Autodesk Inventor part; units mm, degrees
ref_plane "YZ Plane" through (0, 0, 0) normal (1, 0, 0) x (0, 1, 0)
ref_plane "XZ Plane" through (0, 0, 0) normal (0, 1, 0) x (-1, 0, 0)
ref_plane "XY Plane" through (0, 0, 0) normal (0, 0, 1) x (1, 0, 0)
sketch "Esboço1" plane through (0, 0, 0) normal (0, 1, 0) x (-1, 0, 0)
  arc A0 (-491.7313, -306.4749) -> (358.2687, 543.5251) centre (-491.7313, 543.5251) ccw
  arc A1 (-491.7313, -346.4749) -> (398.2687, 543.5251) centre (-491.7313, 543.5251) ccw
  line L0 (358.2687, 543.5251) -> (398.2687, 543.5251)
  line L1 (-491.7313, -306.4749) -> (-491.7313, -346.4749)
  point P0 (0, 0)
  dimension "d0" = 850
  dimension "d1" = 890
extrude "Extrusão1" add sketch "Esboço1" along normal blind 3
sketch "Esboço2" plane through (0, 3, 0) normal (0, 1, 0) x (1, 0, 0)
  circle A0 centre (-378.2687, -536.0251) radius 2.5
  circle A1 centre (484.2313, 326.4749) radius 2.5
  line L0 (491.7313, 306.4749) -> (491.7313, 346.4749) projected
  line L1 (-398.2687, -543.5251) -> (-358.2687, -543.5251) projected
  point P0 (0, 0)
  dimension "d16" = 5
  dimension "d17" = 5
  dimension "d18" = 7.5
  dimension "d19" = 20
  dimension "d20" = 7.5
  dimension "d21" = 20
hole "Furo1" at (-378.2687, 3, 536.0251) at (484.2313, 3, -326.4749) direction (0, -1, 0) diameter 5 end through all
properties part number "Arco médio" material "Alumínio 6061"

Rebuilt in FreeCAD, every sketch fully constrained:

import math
import FreeCAD as App
import Part
import Sketcher

V = App.Vector

doc = App.newDocument("Part")
params = doc.addObject("Spreadsheet::Sheet", "Params")
for row, (alias, value) in enumerate([
    ("sketch1_radius", "850 mm"),
    ("sketch1_radius2", "890 mm"),
    ("pad1_length", "3 mm"),
    ("sketch2_diameter", "5 mm"),
    ("hole_diameter", "5 mm"),
], start=1):
    params.set(f"A{row}", alias)
    params.set(f"B{row}", "=" + value)
    params.setAlias(f"B{row}", alias)

body = doc.addObject("PartDesign::Body", "Body")

# Sketch on XZ plane
sketch1 = body.newObject("Sketcher::SketchObject", "Sketch")
sketch1.AttachmentSupport = (doc.getObject("XZ_Plane"), [""])
sketch1.MapMode = "FlatFace"
sketch1.addGeometry([
    Part.ArcOfCircle(Part.Circle(V(492, 544, 0), V(0, 0, 1), 850), math.radians(180), math.radians(270)),
    Part.LineSegment(V(492, -306, 0), V(492, -346, 0)),
    Part.ArcOfCircle(Part.Circle(V(492, 544, 0), V(0, 0, 1), 890), math.radians(180), math.radians(270)),
    Part.LineSegment(V(-398, 544, 0), V(-358, 544, 0)),
], False)
sketch1.addConstraint([
    Sketcher.Constraint("Coincident", 0, 2, 1, 1),
    Sketcher.Constraint("Coincident", 1, 2, 2, 2),
    Sketcher.Constraint("Coincident", 2, 1, 3, 1),
    Sketcher.Constraint("Coincident", 3, 2, 0, 1),
    Sketcher.Constraint("Vertical", 1),
    Sketcher.Constraint("Horizontal", 3),
    Sketcher.Constraint("Coincident", 2, 3, 0, 3),
    Sketcher.Constraint("Radius", 0, 850.0),
    Sketcher.Constraint("Radius", 2, 890.0),
    Sketcher.Constraint("DistanceX", 2, 1, 1, 2, 890.0),
    Sketcher.Constraint("DistanceY", 0, 2, 3, 2, 850.0),
    Sketcher.Constraint("DistanceY", -1, 1, 0, 3, 543.525),
    Sketcher.Constraint("DistanceX", -1, 1, 0, 3, 491.7313),
])
sketch1.setExpression("Constraints[7]", "Params.sketch1_radius")
sketch1.setExpression("Constraints[8]", "Params.sketch1_radius2")
pad1 = body.newObject("PartDesign::Pad", "Pad")
pad1.Profile = sketch1
pad1.setExpression("Length", "Params.pad1_length")
pad1.Reversed = True

# Sketch on XZ plane
sketch2 = body.newObject("Sketcher::SketchObject", "Sketch001")
sketch2.AttachmentSupport = (doc.getObject("XZ_Plane"), [""])
sketch2.MapMode = "FlatFace"
sketch2.AttachmentOffset = App.Placement(V(0, 0, -3), App.Rotation())
sketch2.addGeometry([
    Part.Circle(V(-378.3, 536, 0), V(0, 0, 1), 2.5),
    Part.Circle(V(484.2, -326.5, 0), V(0, 0, 1), 2.5),
], False)
sketch2.addConstraint([
    Sketcher.Constraint("Equal", 0, 1),
    Sketcher.Constraint("Diameter", 0, 5.0),
    Sketcher.Constraint("DistanceX", 0, 3, 1, 3, 862.5),
    Sketcher.Constraint("DistanceY", 1, 3, 0, 3, 862.5),
    Sketcher.Constraint("DistanceY", -1, 1, 0, 3, 536.025),
    Sketcher.Constraint("DistanceX", 0, 3, -1, 1, 378.2687),
])
sketch2.setExpression("Constraints[1]", "Params.sketch2_diameter")
doc.recompute()
hole = body.newObject("PartDesign::Hole", "Hole")
hole.Profile = sketch2
hole.ThreadType = "None"
hole.setExpression("Diameter", "Params.hole_diameter")
hole.DepthType = "ThroughAll"
hole.Reversed = True

doc.recompute()
